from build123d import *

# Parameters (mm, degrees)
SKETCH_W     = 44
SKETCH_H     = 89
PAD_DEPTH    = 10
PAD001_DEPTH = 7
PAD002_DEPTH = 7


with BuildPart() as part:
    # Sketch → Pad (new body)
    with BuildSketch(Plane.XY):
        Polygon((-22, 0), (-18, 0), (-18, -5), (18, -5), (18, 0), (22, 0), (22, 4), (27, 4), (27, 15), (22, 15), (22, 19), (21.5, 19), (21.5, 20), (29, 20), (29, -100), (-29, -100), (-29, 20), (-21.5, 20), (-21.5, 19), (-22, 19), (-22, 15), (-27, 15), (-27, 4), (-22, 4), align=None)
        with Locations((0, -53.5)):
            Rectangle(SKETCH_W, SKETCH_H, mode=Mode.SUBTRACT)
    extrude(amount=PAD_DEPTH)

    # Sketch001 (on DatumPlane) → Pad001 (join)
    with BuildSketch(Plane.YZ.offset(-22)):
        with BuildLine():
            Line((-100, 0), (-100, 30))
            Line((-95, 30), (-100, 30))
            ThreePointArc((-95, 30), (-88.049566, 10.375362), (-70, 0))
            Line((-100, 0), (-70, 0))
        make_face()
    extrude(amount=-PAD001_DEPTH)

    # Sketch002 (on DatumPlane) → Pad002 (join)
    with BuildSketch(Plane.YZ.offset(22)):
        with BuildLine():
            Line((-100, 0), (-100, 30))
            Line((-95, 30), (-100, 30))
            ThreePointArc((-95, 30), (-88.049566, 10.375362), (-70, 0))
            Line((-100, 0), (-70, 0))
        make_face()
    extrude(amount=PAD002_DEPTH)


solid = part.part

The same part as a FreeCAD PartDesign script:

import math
import FreeCAD as App
import Part
import Sketcher


def add_polygon(sketch, points):
    """Adds a closed chain of lines whose ends are joined by coincident constraints."""
    first, n = sketch.GeometryCount, len(points)
    for a, b in zip(points, points[1:] + points[:1]):
        sketch.addGeometry(Part.LineSegment(App.Vector(*a, 0), App.Vector(*b, 0)), False)
    for i in range(n):
        sketch.addConstraint(Sketcher.Constraint("Coincident", first + i, 2, first + (i + 1) % n, 1))

doc = App.newDocument("Part")
body = doc.addObject("PartDesign::Body", "Body")

# Sketch on XY plane
sketch1 = body.newObject("Sketcher::SketchObject", "Sketch")
sketch1.AttachmentSupport = (doc.getObject("XY_Plane"), [""])
sketch1.MapMode = "FlatFace"
add_polygon(sketch1, [(-18, 0), (-22, 0), (-22, 4), (-27, 4), (-27, 15), (-22, 15), (-22, 19), (-21.5, 19), (-21.5, 20), (-29, 20), (-29, -100), (29, -100), (29, 20), (21.5, 20), (21.5, 19), (22, 19), (22, 15), (27, 15), (27, 4), (22, 4), (22, 0), (18, 0), (18, -5), (-18, -5)])  # lines 0-23
add_polygon(sketch1, [(-22, -98), (-22, -9), (22, -9), (22, -98)])  # lines 24-27
sketch1.addConstraint(Sketcher.Constraint("Horizontal", 0))
sketch1.addConstraint(Sketcher.Constraint("Vertical", 1))
sketch1.addConstraint(Sketcher.Constraint("Horizontal", 2))
sketch1.addConstraint(Sketcher.Constraint("Vertical", 3))
sketch1.addConstraint(Sketcher.Constraint("Horizontal", 4))
sketch1.addConstraint(Sketcher.Constraint("Vertical", 5))
sketch1.addConstraint(Sketcher.Constraint("Horizontal", 6))
sketch1.addConstraint(Sketcher.Constraint("Vertical", 7))
sketch1.addConstraint(Sketcher.Constraint("Horizontal", 8))
sketch1.addConstraint(Sketcher.Constraint("Vertical", 9))
sketch1.addConstraint(Sketcher.Constraint("Horizontal", 10))
sketch1.addConstraint(Sketcher.Constraint("Vertical", 11))
sketch1.addConstraint(Sketcher.Constraint("Horizontal", 12))
sketch1.addConstraint(Sketcher.Constraint("Vertical", 13))
sketch1.addConstraint(Sketcher.Constraint("Horizontal", 14))
sketch1.addConstraint(Sketcher.Constraint("Vertical", 15))
sketch1.addConstraint(Sketcher.Constraint("Horizontal", 16))
sketch1.addConstraint(Sketcher.Constraint("Vertical", 17))
sketch1.addConstraint(Sketcher.Constraint("Horizontal", 18))
sketch1.addConstraint(Sketcher.Constraint("Vertical", 19))
sketch1.addConstraint(Sketcher.Constraint("Horizontal", 20))
sketch1.addConstraint(Sketcher.Constraint("Vertical", 21))
sketch1.addConstraint(Sketcher.Constraint("Horizontal", 22))
sketch1.addConstraint(Sketcher.Constraint("Vertical", 23))
sketch1.addConstraint(Sketcher.Constraint("Vertical", 24))
sketch1.addConstraint(Sketcher.Constraint("Horizontal", 25))
sketch1.addConstraint(Sketcher.Constraint("Vertical", 26))
sketch1.addConstraint(Sketcher.Constraint("Horizontal", 27))
sketch1.addConstraint(Sketcher.Constraint("Symmetric", 0, 2, 19, 2, -1, 1))
sketch1.addConstraint(Sketcher.Constraint("Symmetric", 8, 2, 11, 2, -2))
sketch1.addConstraint(Sketcher.Constraint("Symmetric", 6, 2, 13, 2, -2))
sketch1.addConstraint(Sketcher.Constraint("Symmetric", 4, 2, 15, 2, -2))
sketch1.addConstraint(Sketcher.Constraint("Symmetric", 2, 2, 17, 2, -2))
sketch1.addConstraint(Sketcher.Constraint("Symmetric", 20, 2, 23, 2, -2))
sketch1.addConstraint(Sketcher.Constraint("Vertical", 1, 2, 4, 2))
sketch1.addConstraint(Sketcher.Constraint("Vertical", 5, 2, 24, 2))
sketch1.addConstraint(Sketcher.Constraint("Vertical", 19, 2, 25, 2))
sketch1.addConstraint(Sketcher.Constraint("Equal", 20, 1))
sketch1.addConstraint(Sketcher.Constraint("Equal", 1, 5))
sketch1.addConstraint(Sketcher.Constraint("Equal", 18, 21))
sketch1.addConstraint(Sketcher.Constraint("DistanceX", 0, 2, 0, 1, 4.0))
sketch1.addConstraint(Sketcher.Constraint("DistanceX", 2, 2, 2, 1, 5.0))
sketch1.addConstraint(Sketcher.Constraint("DistanceX", 10, 1, 10, 2, 58.0))
sketch1.addConstraint(Sketcher.Constraint("DistanceX", 22, 2, 22, 1, 36.0))
sketch1.addConstraint(Sketcher.Constraint("DistanceY", 3, 1, 3, 2, 11.0))
sketch1.addConstraint(Sketcher.Constraint("DistanceY", 7, 1, 7, 2, 1.0))
sketch1.addConstraint(Sketcher.Constraint("DistanceY", 9, 2, 9, 1, 120.0))
sketch1.addConstraint(Sketcher.Constraint("DistanceY", 24, 1, 24, 2, 89.0))
sketch1.addConstraint(Sketcher.Constraint("DistanceX", 6, 1, 6, 2, 0.5))
sketch1.addConstraint(Sketcher.Constraint("DistanceY", 24, 2, -1, 1, 9.0))
pad1 = body.newObject("PartDesign::Pad", "Pad")
pad1.Profile = sketch1
pad1.Length = 10

# Sketch on YZ plane
sketch2 = body.newObject("Sketcher::SketchObject", "Sketch001")
sketch2.AttachmentSupport = (doc.getObject("YZ_Plane"), [""])
sketch2.MapMode = "FlatFace"
sketch2.AttachmentOffset = App.Placement(App.Vector(0, 0, -22), App.Rotation())
sketch2.addGeometry(Part.LineSegment(App.Vector(-100, 30, 0), App.Vector(-100, 0, 0)), False)
sketch2.addGeometry(Part.LineSegment(App.Vector(-100, 0, 0), App.Vector(-70, 0, 0)), False)
sketch2.addGeometry(Part.ArcOfCircle(Part.Circle(App.Vector(-65, 30, 0), App.Vector(0, 0, 1), 30), math.radians(179), math.radians(260)), False)
sketch2.addGeometry(Part.LineSegment(App.Vector(-95, 30, 0), App.Vector(-100, 30, 0)), False)
sketch2.addConstraint(Sketcher.Constraint("Coincident", 0, 2, 1, 1))
sketch2.addConstraint(Sketcher.Constraint("Coincident", 1, 2, 2, 2))
sketch2.addConstraint(Sketcher.Constraint("Coincident", 2, 1, 3, 1))
sketch2.addConstraint(Sketcher.Constraint("Coincident", 3, 2, 0, 1))
sketch2.addConstraint(Sketcher.Constraint("Vertical", 0))
sketch2.addConstraint(Sketcher.Constraint("Horizontal", 1))
sketch2.addConstraint(Sketcher.Constraint("Horizontal", 3))
sketch2.addConstraint(Sketcher.Constraint("PointOnObject", 0, 2, -1))
sketch2.addConstraint(Sketcher.Constraint("Equal", 1, 0))
sketch2.addConstraint(Sketcher.Constraint("Radius", 2, 30.000001))
sketch2.addConstraint(Sketcher.Constraint("DistanceX", 1, 1, 1, 2, 30.0))
sketch2.addConstraint(Sketcher.Constraint("DistanceX", 3, 2, 3, 1, 5.0))
sketch2.addConstraint(Sketcher.Constraint("DistanceX", 0, 2, -1, 1, 100.0))
pad2 = body.newObject("PartDesign::Pad", "Pad001")
pad2.Profile = sketch2
pad2.Length = 7
pad2.Reversed = True

# Sketch on YZ plane
sketch3 = body.newObject("Sketcher::SketchObject", "Sketch002")
sketch3.AttachmentSupport = (doc.getObject("YZ_Plane"), [""])
sketch3.MapMode = "FlatFace"
sketch3.AttachmentOffset = App.Placement(App.Vector(0, 0, 22), App.Rotation())
sketch3.addGeometry(Part.LineSegment(App.Vector(-100, 30, 0), App.Vector(-100, 0, 0)), False)
sketch3.addGeometry(Part.LineSegment(App.Vector(-100, 0, 0), App.Vector(-70, 0, 0)), False)
sketch3.addGeometry(Part.ArcOfCircle(Part.Circle(App.Vector(-65, 30, 0), App.Vector(0, 0, 1), 30), math.radians(179), math.radians(260)), False)
sketch3.addGeometry(Part.LineSegment(App.Vector(-95, 30, 0), App.Vector(-100, 30, 0)), False)
sketch3.addConstraint(Sketcher.Constraint("Coincident", 0, 2, 1, 1))
sketch3.addConstraint(Sketcher.Constraint("Coincident", 1, 2, 2, 2))
sketch3.addConstraint(Sketcher.Constraint("Coincident", 2, 1, 3, 1))
sketch3.addConstraint(Sketcher.Constraint("Coincident", 3, 2, 0, 1))
sketch3.addConstraint(Sketcher.Constraint("Vertical", 0))
sketch3.addConstraint(Sketcher.Constraint("Horizontal", 1))
sketch3.addConstraint(Sketcher.Constraint("Horizontal", 3))
sketch3.addConstraint(Sketcher.Constraint("PointOnObject", 0, 2, -1))
sketch3.addConstraint(Sketcher.Constraint("Equal", 1, 0))
sketch3.addConstraint(Sketcher.Constraint("Radius", 2, 30.000001))
sketch3.addConstraint(Sketcher.Constraint("DistanceX", 1, 1, 1, 2, 30.0))
sketch3.addConstraint(Sketcher.Constraint("DistanceX", 3, 2, 3, 1, 5.0))
sketch3.addConstraint(Sketcher.Constraint("DistanceX", 0, 2, -1, 1, 100.0))
pad3 = body.newObject("PartDesign::Pad", "Pad002")
pad3.Profile = sketch3
pad3.Length = 7

doc.recompute()
